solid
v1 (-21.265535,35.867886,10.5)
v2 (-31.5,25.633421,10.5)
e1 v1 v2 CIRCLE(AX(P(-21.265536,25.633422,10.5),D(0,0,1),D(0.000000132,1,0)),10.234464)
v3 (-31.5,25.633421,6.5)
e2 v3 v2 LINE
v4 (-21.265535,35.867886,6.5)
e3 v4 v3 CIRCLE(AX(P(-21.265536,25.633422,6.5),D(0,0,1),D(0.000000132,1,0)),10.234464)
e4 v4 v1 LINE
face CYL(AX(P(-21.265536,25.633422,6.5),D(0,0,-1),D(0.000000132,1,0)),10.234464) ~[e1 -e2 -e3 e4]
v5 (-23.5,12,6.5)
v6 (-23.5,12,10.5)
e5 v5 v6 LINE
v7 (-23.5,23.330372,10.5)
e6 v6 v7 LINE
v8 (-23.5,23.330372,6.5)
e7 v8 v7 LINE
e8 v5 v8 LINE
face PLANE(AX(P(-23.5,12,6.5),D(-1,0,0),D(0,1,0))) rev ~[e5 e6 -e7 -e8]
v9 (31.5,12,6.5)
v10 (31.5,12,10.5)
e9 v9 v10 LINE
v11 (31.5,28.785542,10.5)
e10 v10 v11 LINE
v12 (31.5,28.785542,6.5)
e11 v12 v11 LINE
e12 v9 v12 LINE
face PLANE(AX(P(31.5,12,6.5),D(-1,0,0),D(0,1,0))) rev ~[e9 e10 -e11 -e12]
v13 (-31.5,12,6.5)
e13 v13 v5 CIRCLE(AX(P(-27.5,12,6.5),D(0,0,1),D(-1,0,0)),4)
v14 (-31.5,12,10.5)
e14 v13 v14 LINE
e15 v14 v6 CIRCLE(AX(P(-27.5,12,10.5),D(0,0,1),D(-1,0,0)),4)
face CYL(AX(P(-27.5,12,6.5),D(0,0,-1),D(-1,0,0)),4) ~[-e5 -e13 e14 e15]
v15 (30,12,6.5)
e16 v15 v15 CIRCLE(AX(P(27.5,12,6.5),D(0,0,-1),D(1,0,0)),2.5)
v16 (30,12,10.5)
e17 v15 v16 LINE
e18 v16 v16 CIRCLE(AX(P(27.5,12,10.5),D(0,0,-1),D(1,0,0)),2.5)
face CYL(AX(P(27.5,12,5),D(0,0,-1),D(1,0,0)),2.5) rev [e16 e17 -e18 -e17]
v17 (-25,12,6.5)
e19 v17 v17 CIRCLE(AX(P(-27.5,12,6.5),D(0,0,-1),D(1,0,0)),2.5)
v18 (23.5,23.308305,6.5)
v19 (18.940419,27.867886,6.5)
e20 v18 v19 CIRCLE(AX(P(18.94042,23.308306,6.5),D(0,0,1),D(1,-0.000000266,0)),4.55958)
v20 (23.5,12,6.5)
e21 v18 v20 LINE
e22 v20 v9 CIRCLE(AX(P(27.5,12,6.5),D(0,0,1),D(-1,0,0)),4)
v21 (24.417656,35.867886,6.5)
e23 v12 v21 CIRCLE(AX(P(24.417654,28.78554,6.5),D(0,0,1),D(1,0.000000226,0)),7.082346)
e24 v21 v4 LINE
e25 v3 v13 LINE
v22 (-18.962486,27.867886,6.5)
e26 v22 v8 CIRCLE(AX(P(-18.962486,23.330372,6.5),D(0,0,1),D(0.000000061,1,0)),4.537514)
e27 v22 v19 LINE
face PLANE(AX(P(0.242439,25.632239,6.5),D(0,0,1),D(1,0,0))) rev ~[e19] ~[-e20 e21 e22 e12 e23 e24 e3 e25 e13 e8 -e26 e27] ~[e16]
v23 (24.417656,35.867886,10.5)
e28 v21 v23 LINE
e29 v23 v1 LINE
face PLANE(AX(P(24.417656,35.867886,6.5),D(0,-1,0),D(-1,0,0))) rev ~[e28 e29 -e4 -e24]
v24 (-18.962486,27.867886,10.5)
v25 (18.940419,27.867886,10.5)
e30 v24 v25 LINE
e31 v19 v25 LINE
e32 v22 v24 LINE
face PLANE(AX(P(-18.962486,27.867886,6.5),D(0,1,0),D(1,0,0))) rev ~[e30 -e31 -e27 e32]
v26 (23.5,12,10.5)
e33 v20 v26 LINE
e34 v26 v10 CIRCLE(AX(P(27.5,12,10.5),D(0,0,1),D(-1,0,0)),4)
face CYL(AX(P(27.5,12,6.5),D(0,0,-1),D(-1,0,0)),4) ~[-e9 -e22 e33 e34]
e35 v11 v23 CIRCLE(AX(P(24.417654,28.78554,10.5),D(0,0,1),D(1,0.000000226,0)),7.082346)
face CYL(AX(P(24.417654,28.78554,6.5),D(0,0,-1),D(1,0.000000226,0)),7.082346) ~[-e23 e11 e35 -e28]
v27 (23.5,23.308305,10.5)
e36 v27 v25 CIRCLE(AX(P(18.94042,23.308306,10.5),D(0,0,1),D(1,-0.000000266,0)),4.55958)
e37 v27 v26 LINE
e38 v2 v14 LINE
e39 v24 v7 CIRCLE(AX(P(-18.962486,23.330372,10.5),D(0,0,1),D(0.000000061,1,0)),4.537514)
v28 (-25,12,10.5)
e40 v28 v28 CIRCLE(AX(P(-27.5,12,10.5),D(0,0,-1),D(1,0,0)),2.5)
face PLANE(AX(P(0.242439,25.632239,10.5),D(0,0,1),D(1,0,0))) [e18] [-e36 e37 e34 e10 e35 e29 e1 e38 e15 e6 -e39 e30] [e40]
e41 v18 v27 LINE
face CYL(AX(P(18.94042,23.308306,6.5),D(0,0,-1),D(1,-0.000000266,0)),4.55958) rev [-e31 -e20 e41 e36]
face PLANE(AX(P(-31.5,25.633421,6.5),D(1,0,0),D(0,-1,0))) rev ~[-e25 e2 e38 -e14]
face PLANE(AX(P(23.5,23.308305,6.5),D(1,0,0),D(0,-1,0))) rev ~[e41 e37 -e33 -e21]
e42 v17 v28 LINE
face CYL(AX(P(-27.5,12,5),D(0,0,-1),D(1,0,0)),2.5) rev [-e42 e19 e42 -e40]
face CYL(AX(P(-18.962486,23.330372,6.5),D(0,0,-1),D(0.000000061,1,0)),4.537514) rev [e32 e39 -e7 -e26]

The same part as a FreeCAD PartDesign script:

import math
import FreeCAD as App
import Part
import Sketcher
from FreeCAD import Vector
Q = App.Units.Quantity

doc = App.newDocument("Part")
body = doc.addObject("PartDesign::Body", "Body")

# Sketch on XY plane
sketch1 = body.newObject("Sketcher::SketchObject", "Sketch")
sketch1.AttachmentSupport = (doc.getObject("XY_Plane"), [""])
sketch1.MapMode = "FlatFace"
sketch1.AttachmentOffset = App.Placement(Vector(0, 0, 5), App.Rotation())
sketch1.addGeometry(Part.Circle(Vector(27.5, 12, 0), Vector(0, 0, 1), 2.5), False)
sketch1.addConstraint([
    Sketcher.Constraint("Diameter", 0, Q("5 mm")),
    Sketcher.Constraint("DistanceY", -1, 1, 0, 3, Q("12 mm")),
    Sketcher.Constraint("DistanceX", -1, 1, 0, 3, Q("27.5 mm")),
])
pad1 = body.newObject("PartDesign::Pad", "Pad")
pad1.Profile = sketch1
pad1.Length = 7.5
body2 = doc.addObject("PartDesign::Body", "Body001")
body2.AllowCompound = True

# Sketch on XY plane
sketch2 = body2.newObject("Sketcher::SketchObject", "Sketch001")
sketch2.AttachmentSupport = (doc.getObject("XY_Plane001"), [""])
sketch2.MapMode = "FlatFace"
sketch2.AttachmentOffset = App.Placement(Vector(0, 0, 5), App.Rotation())
sketch2.addGeometry(Part.Circle(Vector(-27.5, 12, 0), Vector(0, 0, 1), 2.5), False)
sketch2.addConstraint([
    Sketcher.Constraint("Diameter", 0, Q("5 mm")),
    Sketcher.Constraint("DistanceY", -1, 1, 0, 3, Q("12 mm")),
    Sketcher.Constraint("DistanceX", 0, 3, -1, 1, Q("27.5 mm")),
])
pad2 = body2.newObject("PartDesign::Pad", "Pad001")
pad2.Profile = sketch2
pad2.Length = 7.5
doc.recompute()

boolean = body2.newObject("PartDesign::Boolean", "Boolean")
boolean.Type = "Fuse"
boolean.addObjects([body])
body3 = doc.addObject("PartDesign::Body", "Body002")

# Sketch on XY plane
sketch3 = body3.newObject("Sketcher::SketchObject", "Sketch002")
sketch3.AttachmentSupport = (doc.getObject("XY_Plane002"), [""])
sketch3.MapMode = "FlatFace"
sketch3.AttachmentOffset = App.Placement(Vector(0, 0, 1.5), App.Rotation())
sketch3.addGeometry([
    Part.LineSegment(Vector(-23.5, 12, 0), Vector(-23.5, 23.330372, 0)),  # 0
    Part.ArcOfCircle(Part.Circle(Vector(-18.962486, 23.330372, 0), Vector(0, 0, 1), 4.537514), math.radians(89.999997), math.radians(180.000003)),  # 1
    Part.LineSegment(Vector(-18.962486, 27.867886, 0), Vector(18.940419, 27.867886, 0)),  # 2
    Part.ArcOfCircle(Part.Circle(Vector(18.94042, 23.308306, 0), Vector(0, 0, 1), 4.55958), math.radians(-0.000015), math.radians(90.000015)),  # 3
    Part.LineSegment(Vector(23.5, 23.308305, 0), Vector(23.5, 12, 0)),  # 4
    Part.ArcOfCircle(Part.Circle(Vector(27.5, 12, 0), Vector(0, 0, 1), 4), math.radians(180), math.radians(360)),  # 5
    Part.LineSegment(Vector(31.5, 12, 0), Vector(31.5, 28.785542, 0)),  # 6
    Part.ArcOfCircle(Part.Circle(Vector(24.417654, 28.78554, 0), Vector(0, 0, 1), 7.082346), math.radians(0.000013), math.radians(89.999987)),  # 7
    Part.LineSegment(Vector(24.417656, 35.867886, 0), Vector(-21.265535, 35.867886, 0)),  # 8
    Part.ArcOfCircle(Part.Circle(Vector(-21.265536, 25.633422, 0), Vector(0, 0, 1), 10.234464), math.radians(89.999992), math.radians(180.000008)),  # 9
    Part.LineSegment(Vector(-31.5, 25.633421, 0), Vector(-31.5, 12, 0)),  # 10
    Part.ArcOfCircle(Part.Circle(Vector(-27.5, 12, 0), Vector(0, 0, 1), 4), math.radians(180), math.radians(360)),  # 11
], False)
sketch3.addConstraint([
    Sketcher.Constraint("Tangent", 0, 2, 1, 2),
    Sketcher.Constraint("Tangent", 1, 1, 2, 1),
    Sketcher.Constraint("Tangent", 2, 2, 3, 2),
    Sketcher.Constraint("Tangent", 3, 1, 4, 1),
    Sketcher.Constraint("Tangent", 4, 2, 5, 1),
    Sketcher.Constraint("Tangent", 5, 2, 6, 1),
    Sketcher.Constraint("Tangent", 6, 2, 7, 1),
    Sketcher.Constraint("Tangent", 7, 2, 8, 1),
    Sketcher.Constraint("Tangent", 8, 2, 9, 1),
    Sketcher.Constraint("Tangent", 9, 2, 10, 1),
    Sketcher.Constraint("Tangent", 10, 2, 11, 1),
    Sketcher.Constraint("Tangent", 11, 2, 0, 1),
    Sketcher.Constraint("Vertical", 0),
    Sketcher.Constraint("Horizontal", 2),
    Sketcher.Constraint("Vertical", 4),
    Sketcher.Constraint("Vertical", 6),
    Sketcher.Constraint("Horizontal", 8),
    Sketcher.Constraint("Vertical", 10),
    Sketcher.Constraint("Equal", 5, 11),
    Sketcher.Constraint("Symmetric", 5, 3, 11, 3, -2),
    Sketcher.Constraint("Radius", 5, Q("4 mm")),
    Sketcher.Constraint("DistanceY", -1, 1, 5, 3, Q("12 mm")),
    Sketcher.Constraint("DistanceX", 11, 3, 5, 3, Q("55 mm")),
    Sketcher.Constraint("DistanceY", 2, 2, 7, 2, Q("8 mm")),
    Sketcher.Constraint("Radius", 3, Q("4.55958 mm")),
    Sketcher.Constraint("Radius", 1, Q("4.537514 mm")),
    Sketcher.Constraint("Radius", 7, Q("7.082346 mm")),
    Sketcher.Constraint("Radius", 9, Q("10.234464 mm")),
    Sketcher.Constraint("DistanceY", 6, 1, 6, 2, Q("16.785542 mm")),
])
pad3 = body3.newObject("PartDesign::Pad", "Pad002")
pad3.Profile = sketch3
pad3.Length = 4
body4 = doc.addObject("PartDesign::Body", "Body003")
doc.recompute()

body3.Placement = App.Placement(Vector(0, 0, 5), App.Rotation(Vector(0, 0, 1), 0))
boolean2 = body4.newObject("PartDesign::Boolean", "Boolean001")
boolean2.Type = "Fuse"
boolean2.addObjects([body3])
doc.recompute()

boolean3 = body4.newObject("PartDesign::Boolean", "Boolean002")
boolean3.Type = "Cut"
boolean3.addObjects([body2])

doc.recompute()
